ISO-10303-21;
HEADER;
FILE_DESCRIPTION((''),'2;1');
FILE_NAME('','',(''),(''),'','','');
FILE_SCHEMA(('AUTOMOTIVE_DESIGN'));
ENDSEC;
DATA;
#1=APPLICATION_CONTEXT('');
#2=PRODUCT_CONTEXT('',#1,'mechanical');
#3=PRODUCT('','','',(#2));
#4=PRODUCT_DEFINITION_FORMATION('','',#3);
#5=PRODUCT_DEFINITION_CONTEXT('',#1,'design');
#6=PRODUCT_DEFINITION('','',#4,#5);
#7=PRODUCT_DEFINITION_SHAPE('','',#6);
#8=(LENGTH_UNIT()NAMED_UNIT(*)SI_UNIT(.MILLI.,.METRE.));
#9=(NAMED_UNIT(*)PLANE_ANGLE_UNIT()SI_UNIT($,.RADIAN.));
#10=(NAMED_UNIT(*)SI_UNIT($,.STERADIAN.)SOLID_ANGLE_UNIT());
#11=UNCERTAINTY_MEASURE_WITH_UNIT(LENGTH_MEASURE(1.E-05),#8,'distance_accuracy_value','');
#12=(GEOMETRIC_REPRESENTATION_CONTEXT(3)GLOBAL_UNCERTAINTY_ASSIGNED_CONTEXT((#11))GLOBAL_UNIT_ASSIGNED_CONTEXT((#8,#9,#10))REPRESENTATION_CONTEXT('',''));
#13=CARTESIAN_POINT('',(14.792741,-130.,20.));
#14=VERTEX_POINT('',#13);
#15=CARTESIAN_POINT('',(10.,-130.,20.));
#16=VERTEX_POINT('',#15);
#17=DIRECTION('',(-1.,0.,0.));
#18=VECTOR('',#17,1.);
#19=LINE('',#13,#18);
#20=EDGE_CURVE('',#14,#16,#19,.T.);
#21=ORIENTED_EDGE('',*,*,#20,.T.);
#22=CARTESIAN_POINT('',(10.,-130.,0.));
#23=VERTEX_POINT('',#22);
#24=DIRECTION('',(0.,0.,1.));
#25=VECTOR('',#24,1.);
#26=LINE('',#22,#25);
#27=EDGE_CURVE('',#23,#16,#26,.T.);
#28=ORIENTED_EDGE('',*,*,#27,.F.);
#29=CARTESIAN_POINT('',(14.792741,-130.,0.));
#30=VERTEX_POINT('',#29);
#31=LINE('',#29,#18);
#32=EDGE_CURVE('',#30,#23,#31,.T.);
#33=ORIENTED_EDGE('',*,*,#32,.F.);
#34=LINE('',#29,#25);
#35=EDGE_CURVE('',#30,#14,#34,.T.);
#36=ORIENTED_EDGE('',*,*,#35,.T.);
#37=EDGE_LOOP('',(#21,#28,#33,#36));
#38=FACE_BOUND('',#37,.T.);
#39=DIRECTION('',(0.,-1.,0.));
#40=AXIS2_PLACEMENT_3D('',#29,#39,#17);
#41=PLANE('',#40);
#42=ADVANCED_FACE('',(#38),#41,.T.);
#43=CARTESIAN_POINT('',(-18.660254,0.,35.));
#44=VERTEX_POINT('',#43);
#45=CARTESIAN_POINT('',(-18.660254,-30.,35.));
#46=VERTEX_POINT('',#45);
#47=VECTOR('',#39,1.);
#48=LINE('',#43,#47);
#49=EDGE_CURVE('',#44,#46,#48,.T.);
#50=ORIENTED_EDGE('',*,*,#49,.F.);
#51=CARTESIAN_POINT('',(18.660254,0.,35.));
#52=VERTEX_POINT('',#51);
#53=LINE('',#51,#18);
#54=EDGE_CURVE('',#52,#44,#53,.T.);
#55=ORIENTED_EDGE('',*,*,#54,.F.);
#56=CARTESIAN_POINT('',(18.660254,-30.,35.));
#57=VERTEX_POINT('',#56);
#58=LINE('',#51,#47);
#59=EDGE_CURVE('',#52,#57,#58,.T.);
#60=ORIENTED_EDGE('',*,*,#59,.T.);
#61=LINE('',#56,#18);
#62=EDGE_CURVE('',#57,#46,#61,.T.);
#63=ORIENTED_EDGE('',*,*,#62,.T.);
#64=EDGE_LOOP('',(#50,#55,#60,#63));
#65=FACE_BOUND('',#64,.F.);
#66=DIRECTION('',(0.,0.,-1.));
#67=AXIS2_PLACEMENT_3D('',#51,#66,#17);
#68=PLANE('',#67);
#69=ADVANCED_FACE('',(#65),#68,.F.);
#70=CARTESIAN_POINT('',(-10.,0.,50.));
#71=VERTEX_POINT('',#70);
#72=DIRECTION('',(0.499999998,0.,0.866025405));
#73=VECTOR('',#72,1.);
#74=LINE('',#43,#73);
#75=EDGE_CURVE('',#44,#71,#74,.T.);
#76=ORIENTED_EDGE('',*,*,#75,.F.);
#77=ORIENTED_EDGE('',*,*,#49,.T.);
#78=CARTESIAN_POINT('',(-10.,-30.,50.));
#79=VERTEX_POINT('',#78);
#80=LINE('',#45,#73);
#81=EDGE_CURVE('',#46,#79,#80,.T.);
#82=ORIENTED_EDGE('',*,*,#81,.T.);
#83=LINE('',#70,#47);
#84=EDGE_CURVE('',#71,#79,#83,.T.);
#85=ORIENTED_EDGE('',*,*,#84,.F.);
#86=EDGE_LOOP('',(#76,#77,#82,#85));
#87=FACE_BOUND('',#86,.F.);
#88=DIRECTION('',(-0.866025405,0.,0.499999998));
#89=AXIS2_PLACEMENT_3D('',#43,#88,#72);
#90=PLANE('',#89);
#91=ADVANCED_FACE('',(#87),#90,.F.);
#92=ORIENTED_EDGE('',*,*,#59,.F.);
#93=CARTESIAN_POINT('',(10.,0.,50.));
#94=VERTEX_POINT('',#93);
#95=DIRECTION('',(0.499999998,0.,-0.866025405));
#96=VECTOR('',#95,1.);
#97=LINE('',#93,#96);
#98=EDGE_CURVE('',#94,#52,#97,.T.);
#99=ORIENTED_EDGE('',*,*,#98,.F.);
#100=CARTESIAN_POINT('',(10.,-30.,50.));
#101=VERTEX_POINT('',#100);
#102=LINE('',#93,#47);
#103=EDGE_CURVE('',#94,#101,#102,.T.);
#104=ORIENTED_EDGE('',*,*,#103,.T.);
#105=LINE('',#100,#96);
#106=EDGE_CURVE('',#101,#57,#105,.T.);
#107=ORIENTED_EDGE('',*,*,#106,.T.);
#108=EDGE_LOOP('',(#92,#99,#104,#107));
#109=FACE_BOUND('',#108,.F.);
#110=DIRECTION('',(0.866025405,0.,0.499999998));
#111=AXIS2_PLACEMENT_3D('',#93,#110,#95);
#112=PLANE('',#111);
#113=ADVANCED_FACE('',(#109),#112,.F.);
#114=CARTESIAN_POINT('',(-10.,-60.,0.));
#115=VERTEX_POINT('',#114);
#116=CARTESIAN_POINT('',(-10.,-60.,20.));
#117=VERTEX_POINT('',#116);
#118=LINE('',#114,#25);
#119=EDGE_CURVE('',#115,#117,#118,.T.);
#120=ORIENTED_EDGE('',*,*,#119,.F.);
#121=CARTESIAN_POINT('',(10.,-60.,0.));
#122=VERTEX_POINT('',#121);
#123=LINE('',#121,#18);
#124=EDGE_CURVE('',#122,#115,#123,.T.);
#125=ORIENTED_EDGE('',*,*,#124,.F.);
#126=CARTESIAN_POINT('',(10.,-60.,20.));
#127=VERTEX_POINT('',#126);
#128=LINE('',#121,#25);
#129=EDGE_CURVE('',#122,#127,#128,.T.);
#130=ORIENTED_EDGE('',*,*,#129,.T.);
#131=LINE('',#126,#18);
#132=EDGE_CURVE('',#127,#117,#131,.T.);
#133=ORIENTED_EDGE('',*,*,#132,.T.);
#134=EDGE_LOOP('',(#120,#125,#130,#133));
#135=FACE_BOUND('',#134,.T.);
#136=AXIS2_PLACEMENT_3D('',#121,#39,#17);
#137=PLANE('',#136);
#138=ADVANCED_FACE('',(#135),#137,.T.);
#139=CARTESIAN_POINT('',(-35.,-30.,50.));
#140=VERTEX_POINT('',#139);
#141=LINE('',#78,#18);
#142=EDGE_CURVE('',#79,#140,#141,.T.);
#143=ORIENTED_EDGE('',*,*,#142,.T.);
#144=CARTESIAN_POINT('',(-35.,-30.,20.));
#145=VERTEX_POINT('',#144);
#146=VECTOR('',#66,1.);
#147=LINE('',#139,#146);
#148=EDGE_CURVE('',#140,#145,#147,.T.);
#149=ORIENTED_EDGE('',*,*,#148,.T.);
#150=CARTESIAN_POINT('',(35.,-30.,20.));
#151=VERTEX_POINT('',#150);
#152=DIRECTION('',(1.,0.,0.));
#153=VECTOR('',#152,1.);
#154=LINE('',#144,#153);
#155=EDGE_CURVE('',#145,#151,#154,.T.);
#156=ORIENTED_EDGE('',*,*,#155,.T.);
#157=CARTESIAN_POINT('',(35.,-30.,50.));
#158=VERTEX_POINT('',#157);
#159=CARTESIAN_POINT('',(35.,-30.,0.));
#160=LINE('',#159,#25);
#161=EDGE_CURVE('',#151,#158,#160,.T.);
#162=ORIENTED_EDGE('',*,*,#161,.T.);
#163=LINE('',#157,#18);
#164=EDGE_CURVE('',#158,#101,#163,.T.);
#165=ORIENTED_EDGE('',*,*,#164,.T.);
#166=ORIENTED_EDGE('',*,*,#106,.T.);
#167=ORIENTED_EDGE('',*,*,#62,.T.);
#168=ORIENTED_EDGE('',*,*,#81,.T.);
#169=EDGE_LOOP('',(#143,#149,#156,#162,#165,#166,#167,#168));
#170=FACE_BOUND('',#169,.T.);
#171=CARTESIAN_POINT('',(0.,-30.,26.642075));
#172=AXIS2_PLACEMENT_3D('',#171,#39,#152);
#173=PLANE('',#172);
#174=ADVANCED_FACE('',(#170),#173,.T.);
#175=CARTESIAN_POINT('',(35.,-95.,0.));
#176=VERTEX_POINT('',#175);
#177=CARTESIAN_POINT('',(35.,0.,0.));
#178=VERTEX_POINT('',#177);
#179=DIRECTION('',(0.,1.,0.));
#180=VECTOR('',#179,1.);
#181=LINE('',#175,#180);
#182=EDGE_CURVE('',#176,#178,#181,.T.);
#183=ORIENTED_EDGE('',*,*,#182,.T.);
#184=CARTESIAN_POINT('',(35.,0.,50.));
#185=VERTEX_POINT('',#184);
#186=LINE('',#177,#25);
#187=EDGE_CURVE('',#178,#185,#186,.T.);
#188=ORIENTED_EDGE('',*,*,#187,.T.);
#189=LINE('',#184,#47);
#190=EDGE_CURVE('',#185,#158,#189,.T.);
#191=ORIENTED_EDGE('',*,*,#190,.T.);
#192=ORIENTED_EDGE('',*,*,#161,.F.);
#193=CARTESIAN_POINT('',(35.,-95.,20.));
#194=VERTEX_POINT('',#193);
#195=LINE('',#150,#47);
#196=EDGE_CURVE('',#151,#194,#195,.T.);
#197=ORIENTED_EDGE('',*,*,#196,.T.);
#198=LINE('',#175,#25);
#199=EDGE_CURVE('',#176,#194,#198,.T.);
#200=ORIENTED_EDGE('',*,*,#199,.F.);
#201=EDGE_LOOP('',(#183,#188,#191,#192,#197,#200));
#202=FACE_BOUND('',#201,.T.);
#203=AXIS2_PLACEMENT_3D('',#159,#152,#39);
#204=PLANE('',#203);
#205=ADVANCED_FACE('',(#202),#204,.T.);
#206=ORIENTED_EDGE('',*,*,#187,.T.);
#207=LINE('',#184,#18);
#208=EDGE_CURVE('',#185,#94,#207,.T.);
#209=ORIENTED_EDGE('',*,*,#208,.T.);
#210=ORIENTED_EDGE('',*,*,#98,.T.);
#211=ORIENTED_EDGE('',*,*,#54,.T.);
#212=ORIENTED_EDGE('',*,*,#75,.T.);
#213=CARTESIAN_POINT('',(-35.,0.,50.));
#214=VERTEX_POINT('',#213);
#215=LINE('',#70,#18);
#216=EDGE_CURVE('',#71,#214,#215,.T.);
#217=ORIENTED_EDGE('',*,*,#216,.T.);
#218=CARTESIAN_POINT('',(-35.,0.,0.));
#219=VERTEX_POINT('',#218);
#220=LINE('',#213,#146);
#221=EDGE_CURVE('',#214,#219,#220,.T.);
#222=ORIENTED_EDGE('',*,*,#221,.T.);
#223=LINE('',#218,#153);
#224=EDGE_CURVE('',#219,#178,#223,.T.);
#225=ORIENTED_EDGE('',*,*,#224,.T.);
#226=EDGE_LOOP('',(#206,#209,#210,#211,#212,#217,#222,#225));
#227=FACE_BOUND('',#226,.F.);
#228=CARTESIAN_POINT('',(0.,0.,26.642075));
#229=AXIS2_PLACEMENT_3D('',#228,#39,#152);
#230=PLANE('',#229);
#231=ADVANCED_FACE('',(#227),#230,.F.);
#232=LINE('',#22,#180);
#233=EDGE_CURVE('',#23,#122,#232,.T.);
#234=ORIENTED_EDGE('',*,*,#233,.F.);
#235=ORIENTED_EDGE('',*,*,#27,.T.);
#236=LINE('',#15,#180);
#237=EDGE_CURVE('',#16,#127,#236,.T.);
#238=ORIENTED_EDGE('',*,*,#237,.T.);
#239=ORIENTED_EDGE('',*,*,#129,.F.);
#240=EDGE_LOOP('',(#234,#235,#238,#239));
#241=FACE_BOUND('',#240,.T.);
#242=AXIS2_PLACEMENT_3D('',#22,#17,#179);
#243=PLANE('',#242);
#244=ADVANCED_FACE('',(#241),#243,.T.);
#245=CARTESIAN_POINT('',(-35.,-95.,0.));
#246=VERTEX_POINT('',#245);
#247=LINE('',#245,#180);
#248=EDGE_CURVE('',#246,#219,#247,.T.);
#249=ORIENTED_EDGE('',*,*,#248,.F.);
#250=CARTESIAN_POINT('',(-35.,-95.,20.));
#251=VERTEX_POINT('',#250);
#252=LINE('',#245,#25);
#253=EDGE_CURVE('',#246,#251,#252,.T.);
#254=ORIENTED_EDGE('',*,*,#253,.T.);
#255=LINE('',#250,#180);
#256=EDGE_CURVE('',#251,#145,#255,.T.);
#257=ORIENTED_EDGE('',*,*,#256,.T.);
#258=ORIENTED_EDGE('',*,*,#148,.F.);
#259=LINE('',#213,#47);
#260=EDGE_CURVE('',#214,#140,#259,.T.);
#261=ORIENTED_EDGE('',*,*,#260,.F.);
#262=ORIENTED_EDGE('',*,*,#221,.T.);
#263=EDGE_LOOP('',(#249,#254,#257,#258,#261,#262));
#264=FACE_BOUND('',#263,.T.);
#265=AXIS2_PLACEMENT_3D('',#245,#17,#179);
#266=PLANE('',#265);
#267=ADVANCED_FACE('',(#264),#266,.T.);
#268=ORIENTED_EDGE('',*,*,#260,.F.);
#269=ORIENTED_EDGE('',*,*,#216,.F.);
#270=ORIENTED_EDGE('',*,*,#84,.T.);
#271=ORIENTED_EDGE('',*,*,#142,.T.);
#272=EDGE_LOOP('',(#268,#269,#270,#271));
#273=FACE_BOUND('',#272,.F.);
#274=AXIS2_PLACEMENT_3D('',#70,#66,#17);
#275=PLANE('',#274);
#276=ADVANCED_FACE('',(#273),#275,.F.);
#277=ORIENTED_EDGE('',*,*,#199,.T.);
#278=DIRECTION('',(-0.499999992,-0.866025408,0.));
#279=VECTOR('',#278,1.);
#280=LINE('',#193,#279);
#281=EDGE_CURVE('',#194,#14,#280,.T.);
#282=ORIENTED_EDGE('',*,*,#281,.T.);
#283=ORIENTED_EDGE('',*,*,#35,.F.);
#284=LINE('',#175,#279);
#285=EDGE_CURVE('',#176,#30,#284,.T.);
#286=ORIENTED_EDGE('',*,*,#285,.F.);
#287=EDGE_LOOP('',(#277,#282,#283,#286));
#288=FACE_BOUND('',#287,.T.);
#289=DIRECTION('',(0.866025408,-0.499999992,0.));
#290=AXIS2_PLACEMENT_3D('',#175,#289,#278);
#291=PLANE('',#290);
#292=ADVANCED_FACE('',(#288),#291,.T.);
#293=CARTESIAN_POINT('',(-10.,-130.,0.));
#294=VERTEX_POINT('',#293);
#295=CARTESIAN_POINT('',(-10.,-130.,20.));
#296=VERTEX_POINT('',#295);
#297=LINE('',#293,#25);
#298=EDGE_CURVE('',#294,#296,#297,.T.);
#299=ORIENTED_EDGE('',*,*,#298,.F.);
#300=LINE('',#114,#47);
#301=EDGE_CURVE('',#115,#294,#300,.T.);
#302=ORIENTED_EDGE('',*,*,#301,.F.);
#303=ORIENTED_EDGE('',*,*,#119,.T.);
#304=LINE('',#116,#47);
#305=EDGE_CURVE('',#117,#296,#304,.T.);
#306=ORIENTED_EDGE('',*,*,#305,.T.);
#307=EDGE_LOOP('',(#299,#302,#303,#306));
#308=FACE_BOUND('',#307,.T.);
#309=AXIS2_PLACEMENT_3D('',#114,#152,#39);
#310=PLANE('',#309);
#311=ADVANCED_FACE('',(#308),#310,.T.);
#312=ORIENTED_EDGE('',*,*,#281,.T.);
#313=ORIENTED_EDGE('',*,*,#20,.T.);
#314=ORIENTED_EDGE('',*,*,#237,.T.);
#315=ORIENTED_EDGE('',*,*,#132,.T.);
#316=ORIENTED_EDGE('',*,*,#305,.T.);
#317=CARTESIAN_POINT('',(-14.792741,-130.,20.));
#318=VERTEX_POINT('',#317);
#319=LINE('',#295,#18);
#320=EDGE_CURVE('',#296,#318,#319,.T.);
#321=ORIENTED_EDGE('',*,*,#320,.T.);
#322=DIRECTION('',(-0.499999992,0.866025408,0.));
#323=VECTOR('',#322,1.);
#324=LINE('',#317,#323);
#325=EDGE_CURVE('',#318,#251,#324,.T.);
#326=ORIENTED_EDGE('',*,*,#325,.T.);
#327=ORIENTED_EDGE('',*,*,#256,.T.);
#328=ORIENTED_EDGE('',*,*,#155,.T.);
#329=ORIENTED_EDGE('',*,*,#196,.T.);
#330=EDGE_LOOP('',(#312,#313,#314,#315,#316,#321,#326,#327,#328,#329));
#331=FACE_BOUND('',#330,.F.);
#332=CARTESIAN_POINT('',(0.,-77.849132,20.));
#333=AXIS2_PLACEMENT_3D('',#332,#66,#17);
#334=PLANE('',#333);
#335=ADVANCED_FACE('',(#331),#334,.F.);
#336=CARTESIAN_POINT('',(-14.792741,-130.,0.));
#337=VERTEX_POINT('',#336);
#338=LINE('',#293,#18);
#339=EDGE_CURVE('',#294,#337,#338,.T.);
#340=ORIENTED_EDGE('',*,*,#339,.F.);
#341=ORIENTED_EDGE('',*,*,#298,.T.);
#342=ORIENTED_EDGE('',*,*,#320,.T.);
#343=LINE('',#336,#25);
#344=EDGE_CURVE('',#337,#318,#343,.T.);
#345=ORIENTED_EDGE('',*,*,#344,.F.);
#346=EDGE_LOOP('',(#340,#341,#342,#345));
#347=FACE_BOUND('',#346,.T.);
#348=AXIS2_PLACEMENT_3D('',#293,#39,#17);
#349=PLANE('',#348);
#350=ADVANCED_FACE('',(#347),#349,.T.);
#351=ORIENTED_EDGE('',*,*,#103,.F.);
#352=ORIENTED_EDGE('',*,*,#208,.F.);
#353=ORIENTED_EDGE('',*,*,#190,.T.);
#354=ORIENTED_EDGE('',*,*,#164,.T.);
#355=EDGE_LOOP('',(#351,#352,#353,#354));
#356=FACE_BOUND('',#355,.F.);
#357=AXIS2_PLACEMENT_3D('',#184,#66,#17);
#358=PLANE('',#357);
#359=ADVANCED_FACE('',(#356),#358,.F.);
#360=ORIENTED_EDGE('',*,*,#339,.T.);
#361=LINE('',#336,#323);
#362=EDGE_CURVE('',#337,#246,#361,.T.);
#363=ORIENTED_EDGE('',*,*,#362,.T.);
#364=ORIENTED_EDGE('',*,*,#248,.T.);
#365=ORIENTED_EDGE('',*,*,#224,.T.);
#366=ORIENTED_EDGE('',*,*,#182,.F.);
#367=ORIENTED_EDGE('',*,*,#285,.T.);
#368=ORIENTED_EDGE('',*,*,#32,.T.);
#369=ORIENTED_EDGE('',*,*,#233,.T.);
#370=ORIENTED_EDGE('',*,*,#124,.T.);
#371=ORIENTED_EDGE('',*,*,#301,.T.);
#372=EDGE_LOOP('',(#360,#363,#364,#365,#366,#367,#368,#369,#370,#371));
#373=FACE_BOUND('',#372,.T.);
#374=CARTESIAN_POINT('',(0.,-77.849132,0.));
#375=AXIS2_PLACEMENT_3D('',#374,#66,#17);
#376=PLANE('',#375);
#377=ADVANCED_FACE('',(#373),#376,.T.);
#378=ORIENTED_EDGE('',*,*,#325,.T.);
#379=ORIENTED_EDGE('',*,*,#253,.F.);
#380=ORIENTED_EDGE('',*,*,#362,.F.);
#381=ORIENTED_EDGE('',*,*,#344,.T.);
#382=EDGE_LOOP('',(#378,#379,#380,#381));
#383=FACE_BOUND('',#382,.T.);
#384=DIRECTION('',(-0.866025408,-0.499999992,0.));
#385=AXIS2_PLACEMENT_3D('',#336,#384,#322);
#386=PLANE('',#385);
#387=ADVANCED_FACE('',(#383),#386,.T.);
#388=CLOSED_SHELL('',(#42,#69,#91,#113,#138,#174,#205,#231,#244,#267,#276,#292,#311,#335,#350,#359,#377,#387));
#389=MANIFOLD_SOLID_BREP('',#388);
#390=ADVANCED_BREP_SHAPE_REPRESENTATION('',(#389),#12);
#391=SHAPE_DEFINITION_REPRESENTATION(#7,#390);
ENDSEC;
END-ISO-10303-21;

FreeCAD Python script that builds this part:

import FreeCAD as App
import Part
import Sketcher
from FreeCAD import Vector
Q = App.Units.Quantity

doc = App.newDocument("Part")
params = doc.addObject("Spreadsheet::Sheet", "Params")
for row, (alias, value) in enumerate([
    ("sketch1_width", "70 mm"),
    ("sketch1_width2", "20 mm"),
    ("sketch1_height", "65 mm"),
    ("pad1_length", "20 mm"),
    ("sketch2_width", "70 mm"),
    ("sketch2_width2", "25 mm"),
    ("sketch2_height", "50 mm"),
    ("pad2_length", "30 mm"),
], start=1):
    params.set(f"A{row}", alias)
    params.set(f"B{row}", "=" + value)
    params.setAlias(f"B{row}", alias)

body = doc.addObject("PartDesign::Body", "Body")

# Sketch on XY plane
sketch1 = body.newObject("Sketcher::SketchObject", "Sketch")
sketch1.AttachmentSupport = (doc.getObject("XY_Plane"), [""])
sketch1.MapMode = "FlatFace"
sketch1.addGeometry([
    Part.LineSegment(Vector(35, -30, 0), Vector(-35, -30, 0)),  # 0
    Part.LineSegment(Vector(-35, -30, 0), Vector(-35, -95, 0)),  # 1
    Part.LineSegment(Vector(-35, -95, 0), Vector(-14.792741, -130, 0)),  # 2
    Part.LineSegment(Vector(-14.792741, -130, 0), Vector(-10, -130, 0)),  # 3
    Part.LineSegment(Vector(-10, -130, 0), Vector(-10, -60, 0)),  # 4
    Part.LineSegment(Vector(-10, -60, 0), Vector(10, -60, 0)),  # 5
    Part.LineSegment(Vector(10, -60, 0), Vector(10, -130, 0)),  # 6
    Part.LineSegment(Vector(10, -130, 0), Vector(14.792741, -130, 0)),  # 7
    Part.LineSegment(Vector(14.792741, -130, 0), Vector(35, -95, 0)),  # 8
    Part.LineSegment(Vector(35, -95, 0), Vector(35, -30, 0)),  # 9
], False)
sketch1.addConstraint([
    Sketcher.Constraint("Coincident", 0, 2, 1, 1),
    Sketcher.Constraint("Coincident", 1, 2, 2, 1),
    Sketcher.Constraint("Coincident", 2, 2, 3, 1),
    Sketcher.Constraint("Coincident", 3, 2, 4, 1),
    Sketcher.Constraint("Coincident", 4, 2, 5, 1),
    Sketcher.Constraint("Coincident", 5, 2, 6, 1),
    Sketcher.Constraint("Coincident", 6, 2, 7, 1),
    Sketcher.Constraint("Coincident", 7, 2, 8, 1),
    Sketcher.Constraint("Coincident", 8, 2, 9, 1),
    Sketcher.Constraint("Coincident", 9, 2, 0, 1),
    Sketcher.Constraint("Horizontal", 0),
    Sketcher.Constraint("Vertical", 1),
    Sketcher.Constraint("Horizontal", 3),
    Sketcher.Constraint("Vertical", 4),
    Sketcher.Constraint("Horizontal", 5),
    Sketcher.Constraint("Vertical", 6),
    Sketcher.Constraint("Horizontal", 7),
    Sketcher.Constraint("Vertical", 9),
    Sketcher.Constraint("Symmetric", 3, 2, 6, 2, -2),
    Sketcher.Constraint("Symmetric", 1, 2, 8, 2, -2),
    Sketcher.Constraint("Equal", 3, 7),
    Sketcher.Constraint("Equal", 0, 4),
    Sketcher.Constraint("DistanceX", 0, 2, 0, 1, 70.0),
    Sketcher.Constraint("DistanceX", 5, 1, 5, 2, 20.0),
    Sketcher.Constraint("DistanceY", 1, 2, 1, 1, 65.0),
    Sketcher.Constraint("Angle", 2, Q("-60.000001 deg")),
    Sketcher.Constraint("DistanceY", 0, 2, -1, 1, 30.0),
    Sketcher.Constraint("DistanceY", 2, 2, -1, 1, 130.0),
])
sketch1.setExpression("Constraints[22]", "Params.sketch1_width")
sketch1.setExpression("Constraints[23]", "Params.sketch1_width2")
sketch1.setExpression("Constraints[24]", "Params.sketch1_height")
pad1 = body.newObject("PartDesign::Pad", "Pad")
pad1.Profile = sketch1
pad1.setExpression("Length", "Params.pad1_length")
body2 = doc.addObject("PartDesign::Body", "Body001")

# Sketch on XZ plane
sketch2 = body2.newObject("Sketcher::SketchObject", "Sketch001")
sketch2.AttachmentSupport = (doc.getObject("XZ_Plane001"), [""])
sketch2.MapMode = "FlatFace"
sketch2.addGeometry([
    Part.LineSegment(Vector(-35, 0, 0), Vector(35, 0, 0)),  # 0
    Part.LineSegment(Vector(35, 0, 0), Vector(35, 50, 0)),  # 1
    Part.LineSegment(Vector(35, 50, 0), Vector(10, 50, 0)),  # 2
    Part.LineSegment(Vector(10, 50, 0), Vector(18.660254, 35, 0)),  # 3
    Part.LineSegment(Vector(18.660254, 35, 0), Vector(-18.660254, 35, 0)),  # 4
    Part.LineSegment(Vector(-18.660254, 35, 0), Vector(-10, 50, 0)),  # 5
    Part.LineSegment(Vector(-10, 50, 0), Vector(-35, 50, 0)),  # 6
    Part.LineSegment(Vector(-35, 50, 0), Vector(-35, 0, 0)),  # 7
], False)
sketch2.addConstraint([
    Sketcher.Constraint("Coincident", 0, 2, 1, 1),
    Sketcher.Constraint("Coincident", 1, 2, 2, 1),
    Sketcher.Constraint("Coincident", 2, 2, 3, 1),
    Sketcher.Constraint("Coincident", 3, 2, 4, 1),
    Sketcher.Constraint("Coincident", 4, 2, 5, 1),
    Sketcher.Constraint("Coincident", 5, 2, 6, 1),
    Sketcher.Constraint("Coincident", 6, 2, 7, 1),
    Sketcher.Constraint("Coincident", 7, 2, 0, 1),
    Sketcher.Constraint("Horizontal", 0),
    Sketcher.Constraint("Vertical", 1),
    Sketcher.Constraint("Horizontal", 2),
    Sketcher.Constraint("Horizontal", 4),
    Sketcher.Constraint("Horizontal", 6),
    Sketcher.Constraint("Vertical", 7),
    Sketcher.Constraint("Symmetric", 0, 2, 7, 2, -1, 1),
    Sketcher.Constraint("Symmetric", 2, 2, 5, 2, -2),
    Sketcher.Constraint("Equal", 3, 5),
    Sketcher.Constraint("DistanceX", 0, 1, 0, 2, 70.0),
    Sketcher.Constraint("DistanceX", 2, 2, 2, 1, 25.0),
    Sketcher.Constraint("DistanceY", 1, 1, 1, 2, 50.0),
    Sketcher.Constraint("Angle", 3, Q("-60 deg")),
    Sketcher.Constraint("DistanceY", -1, 1, 3, 2, 35.0),
])
sketch2.setExpression("Constraints[17]", "Params.sketch2_width")
sketch2.setExpression("Constraints[18]", "Params.sketch2_width2")
sketch2.setExpression("Constraints[19]", "Params.sketch2_height")
pad2 = body2.newObject("PartDesign::Pad", "Pad001")
pad2.Profile = sketch2
pad2.setExpression("Length", "Params.pad2_length")
doc.recompute()

boolean = body2.newObject("PartDesign::Boolean", "Boolean")
boolean.Type = "Fuse"
boolean.addObjects([body])

doc.recompute()
